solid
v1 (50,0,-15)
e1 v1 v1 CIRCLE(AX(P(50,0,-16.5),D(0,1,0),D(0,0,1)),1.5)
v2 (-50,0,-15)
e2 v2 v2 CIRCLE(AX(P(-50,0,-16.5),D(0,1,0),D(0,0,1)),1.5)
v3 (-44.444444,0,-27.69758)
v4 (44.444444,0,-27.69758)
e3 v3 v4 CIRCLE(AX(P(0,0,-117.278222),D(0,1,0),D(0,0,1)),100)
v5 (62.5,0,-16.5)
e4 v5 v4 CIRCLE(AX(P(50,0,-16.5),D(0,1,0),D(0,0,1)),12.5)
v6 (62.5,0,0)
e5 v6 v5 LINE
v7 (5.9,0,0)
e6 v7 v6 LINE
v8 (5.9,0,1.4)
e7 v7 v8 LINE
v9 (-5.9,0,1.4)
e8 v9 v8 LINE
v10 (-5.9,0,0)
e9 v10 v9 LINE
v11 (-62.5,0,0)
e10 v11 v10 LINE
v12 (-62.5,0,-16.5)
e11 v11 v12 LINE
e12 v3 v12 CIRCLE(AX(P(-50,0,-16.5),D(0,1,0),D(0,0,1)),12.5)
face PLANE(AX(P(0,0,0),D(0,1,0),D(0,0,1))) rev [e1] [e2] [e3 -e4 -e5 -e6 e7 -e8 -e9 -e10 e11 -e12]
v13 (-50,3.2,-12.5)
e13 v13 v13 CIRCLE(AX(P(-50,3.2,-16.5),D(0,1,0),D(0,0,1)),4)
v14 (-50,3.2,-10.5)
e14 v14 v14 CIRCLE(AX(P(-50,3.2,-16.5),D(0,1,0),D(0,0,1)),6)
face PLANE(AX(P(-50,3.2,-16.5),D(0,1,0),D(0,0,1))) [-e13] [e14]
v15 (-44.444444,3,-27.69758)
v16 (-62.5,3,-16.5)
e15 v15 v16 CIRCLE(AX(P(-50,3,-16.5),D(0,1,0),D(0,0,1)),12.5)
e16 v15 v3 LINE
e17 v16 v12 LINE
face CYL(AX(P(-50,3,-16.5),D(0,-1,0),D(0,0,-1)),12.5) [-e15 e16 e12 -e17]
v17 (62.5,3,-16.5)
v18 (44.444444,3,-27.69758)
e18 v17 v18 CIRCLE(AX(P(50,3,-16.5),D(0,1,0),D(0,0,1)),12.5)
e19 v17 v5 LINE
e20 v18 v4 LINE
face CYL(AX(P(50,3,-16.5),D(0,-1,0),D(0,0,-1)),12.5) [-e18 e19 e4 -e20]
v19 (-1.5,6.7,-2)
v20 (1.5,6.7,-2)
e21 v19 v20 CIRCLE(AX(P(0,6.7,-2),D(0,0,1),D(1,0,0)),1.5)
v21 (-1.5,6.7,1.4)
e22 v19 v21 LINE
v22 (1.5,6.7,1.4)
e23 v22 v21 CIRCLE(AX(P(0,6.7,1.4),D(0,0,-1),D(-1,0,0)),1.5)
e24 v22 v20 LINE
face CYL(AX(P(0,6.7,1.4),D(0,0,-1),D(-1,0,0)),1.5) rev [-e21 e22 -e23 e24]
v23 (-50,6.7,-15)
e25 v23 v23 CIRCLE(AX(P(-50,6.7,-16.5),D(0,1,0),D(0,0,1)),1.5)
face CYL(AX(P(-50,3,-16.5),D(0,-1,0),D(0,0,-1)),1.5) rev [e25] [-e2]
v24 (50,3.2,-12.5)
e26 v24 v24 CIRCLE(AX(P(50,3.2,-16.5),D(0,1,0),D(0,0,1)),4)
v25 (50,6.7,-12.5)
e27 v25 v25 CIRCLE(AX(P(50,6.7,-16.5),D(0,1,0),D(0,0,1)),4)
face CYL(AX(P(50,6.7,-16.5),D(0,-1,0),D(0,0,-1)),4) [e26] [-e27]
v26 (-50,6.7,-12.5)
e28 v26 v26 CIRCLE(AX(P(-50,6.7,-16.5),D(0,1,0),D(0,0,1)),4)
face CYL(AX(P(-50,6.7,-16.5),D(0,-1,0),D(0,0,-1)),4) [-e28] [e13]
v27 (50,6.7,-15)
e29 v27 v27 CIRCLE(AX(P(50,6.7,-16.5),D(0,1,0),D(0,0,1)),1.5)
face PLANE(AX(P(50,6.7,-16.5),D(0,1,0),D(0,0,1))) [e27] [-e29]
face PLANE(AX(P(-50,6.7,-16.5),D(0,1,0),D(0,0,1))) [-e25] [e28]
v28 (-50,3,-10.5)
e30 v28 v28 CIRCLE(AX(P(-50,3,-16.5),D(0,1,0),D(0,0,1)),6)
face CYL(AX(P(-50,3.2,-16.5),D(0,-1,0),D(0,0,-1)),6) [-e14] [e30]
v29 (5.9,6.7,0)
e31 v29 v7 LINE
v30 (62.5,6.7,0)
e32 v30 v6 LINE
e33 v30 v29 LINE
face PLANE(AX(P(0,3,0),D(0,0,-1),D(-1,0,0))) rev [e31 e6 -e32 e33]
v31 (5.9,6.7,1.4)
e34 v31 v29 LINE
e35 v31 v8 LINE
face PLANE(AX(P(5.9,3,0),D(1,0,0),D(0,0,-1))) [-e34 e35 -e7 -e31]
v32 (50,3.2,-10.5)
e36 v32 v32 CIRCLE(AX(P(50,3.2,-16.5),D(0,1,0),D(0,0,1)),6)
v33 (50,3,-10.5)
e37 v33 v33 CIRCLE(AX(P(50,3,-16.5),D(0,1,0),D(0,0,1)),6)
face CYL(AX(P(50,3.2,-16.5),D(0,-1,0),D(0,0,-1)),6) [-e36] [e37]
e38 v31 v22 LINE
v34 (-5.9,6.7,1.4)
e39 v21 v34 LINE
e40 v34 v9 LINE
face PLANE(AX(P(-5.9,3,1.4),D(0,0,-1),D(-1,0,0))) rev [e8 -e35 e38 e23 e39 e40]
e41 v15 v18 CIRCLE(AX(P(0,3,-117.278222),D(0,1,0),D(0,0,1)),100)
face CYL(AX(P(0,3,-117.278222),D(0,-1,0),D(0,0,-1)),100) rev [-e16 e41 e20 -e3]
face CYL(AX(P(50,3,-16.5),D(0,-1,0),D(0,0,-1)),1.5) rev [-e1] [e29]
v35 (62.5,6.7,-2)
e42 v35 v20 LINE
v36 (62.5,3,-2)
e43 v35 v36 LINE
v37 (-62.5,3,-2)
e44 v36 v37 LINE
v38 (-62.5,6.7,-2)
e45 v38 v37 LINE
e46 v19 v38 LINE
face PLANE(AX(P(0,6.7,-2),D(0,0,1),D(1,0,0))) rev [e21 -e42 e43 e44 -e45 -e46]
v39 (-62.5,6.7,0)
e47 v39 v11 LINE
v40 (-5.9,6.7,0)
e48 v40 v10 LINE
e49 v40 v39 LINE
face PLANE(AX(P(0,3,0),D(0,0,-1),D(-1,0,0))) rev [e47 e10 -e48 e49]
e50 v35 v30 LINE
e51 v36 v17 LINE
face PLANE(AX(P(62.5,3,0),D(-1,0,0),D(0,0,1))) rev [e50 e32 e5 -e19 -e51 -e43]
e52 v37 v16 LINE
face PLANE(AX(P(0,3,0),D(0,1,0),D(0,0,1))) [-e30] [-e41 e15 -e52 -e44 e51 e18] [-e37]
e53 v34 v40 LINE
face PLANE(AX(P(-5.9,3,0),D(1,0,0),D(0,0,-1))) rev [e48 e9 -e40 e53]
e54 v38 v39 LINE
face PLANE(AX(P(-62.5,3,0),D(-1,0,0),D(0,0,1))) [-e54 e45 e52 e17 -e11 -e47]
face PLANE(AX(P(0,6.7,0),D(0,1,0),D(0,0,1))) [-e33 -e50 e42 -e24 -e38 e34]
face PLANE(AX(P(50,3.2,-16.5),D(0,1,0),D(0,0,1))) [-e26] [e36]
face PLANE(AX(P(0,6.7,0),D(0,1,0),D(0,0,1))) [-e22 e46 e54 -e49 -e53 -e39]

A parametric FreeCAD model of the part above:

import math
import FreeCAD as App
import Part
import Sketcher
from FreeCAD import Vector

doc = App.newDocument("Part")
body = doc.addObject("PartDesign::Body", "Body")

sketch1 = doc.addObject("Sketcher::SketchObject", "Sketch")
body.addObject(sketch1)
sketch1.AttachmentSupport = (doc.XZ_Plane, [""])
sketch1.MapMode = "FlatFace"
sketch1.addGeometry([
    Part.LineSegment(Vector(-62.5, 0, 0), Vector(-5.9, 0, 0)),
    Part.LineSegment(Vector(-5.9, 0, 0), Vector(-5.9, 1.4, 0)),
    Part.LineSegment(Vector(-5.9, 1.4, 0), Vector(5.9, 1.4, 0)),
    Part.LineSegment(Vector(5.9, 1.4, 0), Vector(5.9, 0, 0)),
    Part.LineSegment(Vector(5.9, 0, 0), Vector(62.5, 0, 0)),
    Part.LineSegment(Vector(62.5, 0, 0), Vector(62.5, -16.5, 0)),
    Part.ArcOfCircle(Part.Circle(Vector(50, -16.5, 0), Vector(0, 0, 1), 12.5), math.radians(-116.387803), math.radians(0)),
    Part.ArcOfCircle(Part.Circle(Vector(0, -117.278222, 0), Vector(0, 0, 1), 100), math.radians(63.6122), math.radians(116.3878)),
    Part.ArcOfCircle(Part.Circle(Vector(-50, -16.5, 0), Vector(0, 0, 1), 12.5), math.radians(180), math.radians(296.387802)),
    Part.LineSegment(Vector(-62.5, -16.5, 0), Vector(-62.5, 0, 0)),
    Part.Circle(Vector(-50, -16.5, 0), Vector(0, 0, 1), 1.5),
    Part.Circle(Vector(50, -16.5, 0), Vector(0, 0, 1), 1.5),
], False)
sketch1.addConstraint([
    Sketcher.Constraint("Coincident", 0, 2, 1, 1),
    Sketcher.Constraint("Coincident", 1, 2, 2, 1),
    Sketcher.Constraint("Coincident", 2, 2, 3, 1),
    Sketcher.Constraint("Coincident", 3, 2, 4, 1),
    Sketcher.Constraint("Coincident", 4, 2, 5, 1),
    Sketcher.Constraint("Tangent", 5, 2, 6, 2),
    Sketcher.Constraint("Tangent", 6, 1, 7, 1),
    Sketcher.Constraint("Tangent", 7, 2, 8, 2),
    Sketcher.Constraint("Tangent", 8, 1, 9, 1),
    Sketcher.Constraint("Coincident", 9, 2, 0, 1),
    Sketcher.Constraint("Horizontal", 0),
    Sketcher.Constraint("Vertical", 1),
    Sketcher.Constraint("Horizontal", 2),
    Sketcher.Constraint("Vertical", 3),
    Sketcher.Constraint("Horizontal", 4),
    Sketcher.Constraint("Vertical", 5),
    Sketcher.Constraint("Vertical", 9),
    Sketcher.Constraint("Coincident", 10, 3, 8, 3),
    Sketcher.Constraint("Coincident", 11, 3, 6, 3),
    Sketcher.Constraint("Equal", 6, 8),
    Sketcher.Constraint("Equal", 10, 11),
    Sketcher.Constraint("Symmetric", 0, 2, 3, 2, -1, 1),
    Sketcher.Constraint("Symmetric", 6, 3, 8, 3, -2),
    Sketcher.Constraint("PointOnObject", 0, 2, -1),
    Sketcher.Constraint("Diameter", 10, 3.0),
    Sketcher.Constraint("Radius", 7, 100.0),
    Sketcher.Constraint("Radius", 6, 12.5),
    Sketcher.Constraint("DistanceX", 0, 1, 0, 2, 56.6),
    Sketcher.Constraint("DistanceX", 2, 1, 2, 2, 11.8),
    Sketcher.Constraint("DistanceY", 1, 1, 1, 2, 1.4),
    Sketcher.Constraint("DistanceY", 5, 2, 5, 1, 16.5),
])
pad1 = doc.addObject("PartDesign::Pad", "Pad")
body.addObject(pad1)
pad1.Profile = sketch1
pad1.Length = 3
pad1.Reversed = True

sketch2 = doc.addObject("Sketcher::SketchObject", "Sketch001")
body.addObject(sketch2)
sketch2.AttachmentSupport = (doc.XZ_Plane, [""])
sketch2.MapMode = "FlatFace"
sketch2.AttachmentOffset = App.Placement(Vector(0, 0, -3), App.Rotation())
sketch2.addGeometry([
    Part.Circle(Vector(-50, -16.5, 0), Vector(0, 0, 1), 4),
    Part.Circle(Vector(-50, -16.5, 0), Vector(0, 0, 1), 1.5),
    Part.Circle(Vector(50, -16.5, 0), Vector(0, 0, 1), 4),
    Part.Circle(Vector(50, -16.5, 0), Vector(0, 0, 1), 1.5),
    Part.LineSegment(Vector(-5.9, 0, 0), Vector(-5.9, 1.4, 0)),
    Part.LineSegment(Vector(-5.9, 1.4, 0), Vector(5.9, 1.4, 0)),
    Part.LineSegment(Vector(5.9, 1.4, 0), Vector(5.9, 0, 0)),
    Part.LineSegment(Vector(5.9, 0, 0), Vector(62.5, 0, 0)),
    Part.LineSegment(Vector(62.5, 0, 0), Vector(62.5, -2, 0)),
    Part.LineSegment(Vector(62.5, -2, 0), Vector(-62.5, -2, 0)),
    Part.LineSegment(Vector(-62.5, -2, 0), Vector(-62.5, 0, 0)),
    Part.LineSegment(Vector(-62.5, 0, 0), Vector(-5.9, 0, 0)),
], False)
sketch2.addConstraint([
    Sketcher.Constraint("Coincident", 4, 2, 5, 1),
    Sketcher.Constraint("Coincident", 5, 2, 6, 1),
    Sketcher.Constraint("Coincident", 6, 2, 7, 1),
    Sketcher.Constraint("Coincident", 7, 2, 8, 1),
    Sketcher.Constraint("Coincident", 8, 2, 9, 1),
    Sketcher.Constraint("Coincident", 9, 2, 10, 1),
    Sketcher.Constraint("Coincident", 10, 2, 11, 1),
    Sketcher.Constraint("Coincident", 11, 2, 4, 1),
    Sketcher.Constraint("Vertical", 4),
    Sketcher.Constraint("Horizontal", 5),
    Sketcher.Constraint("Vertical", 6),
    Sketcher.Constraint("Horizontal", 7),
    Sketcher.Constraint("Vertical", 8),
    Sketcher.Constraint("Horizontal", 9),
    Sketcher.Constraint("Vertical", 10),
    Sketcher.Constraint("Horizontal", 11),
    Sketcher.Constraint("Coincident", 1, 3, 0, 3),
    Sketcher.Constraint("Coincident", 3, 3, 2, 3),
    Sketcher.Constraint("Equal", 0, 2),
    Sketcher.Constraint("Equal", 1, 3),
    Sketcher.Constraint("Symmetric", 7, 2, 10, 2, -1, 1),
    Sketcher.Constraint("Symmetric", 0, 3, 2, 3, -2),
    Sketcher.Constraint("Symmetric", 6, 2, 11, 2, -2),
    Sketcher.Constraint("Diameter", 0, 8.0),
    Sketcher.Constraint("Diameter", 1, 3.0),
    Sketcher.Constraint("DistanceX", 9, 2, 9, 1, 125.0),
    Sketcher.Constraint("DistanceY", 8, 2, 8, 1, 2.0),
    Sketcher.Constraint("DistanceX", 5, 1, 5, 2, 11.8),
    Sketcher.Constraint("DistanceY", 4, 1, 4, 2, 1.4),
    Sketcher.Constraint("DistanceX", 0, 3, -1, 1, 50.0),
    Sketcher.Constraint("DistanceY", 0, 3, -1, 1, 16.5),
])
pad2 = doc.addObject("PartDesign::Pad", "Pad001")
body.addObject(pad2)
pad2.Profile = sketch2
pad2.Length = 3.7
pad2.Reversed = True

sketch3 = doc.addObject("Sketcher::SketchObject", "Sketch002")
body.addObject(sketch3)
sketch3.AttachmentSupport = (doc.XY_Plane, [""])
sketch3.MapMode = "FlatFace"
sketch3.AttachmentOffset = App.Placement(Vector(0, 0, -2), App.Rotation())
sketch3.addGeometry(Part.Circle(Vector(0, 6.7, 0), Vector(0, 0, 1), 1.5), False)
sketch3.addConstraint([
    Sketcher.Constraint("PointOnObject", 0, 3, -2),
    Sketcher.Constraint("Diameter", 0, 3.0),
    Sketcher.Constraint("DistanceY", -1, 1, 0, 3, 6.7),
])
pocket1 = doc.addObject("PartDesign::Pocket", "Pocket")
body.addObject(pocket1)
pocket1.Profile = sketch3
pocket1.Type = "ThroughAll"
pocket1.Reversed = True

sketch4 = doc.addObject("Sketcher::SketchObject", "Sketch003")
body.addObject(sketch4)
sketch4.AttachmentSupport = (doc.XZ_Plane, [""])
sketch4.MapMode = "FlatFace"
sketch4.AttachmentOffset = App.Placement(Vector(0, 0, -3), App.Rotation())
sketch4.addGeometry([
    Part.Circle(Vector(-50, -16.5, 0), Vector(0, 0, 1), 6),
    Part.Circle(Vector(-50, -16.5, 0), Vector(0, 0, 1), 1.5),
    Part.Circle(Vector(50, -16.5, 0), Vector(0, 0, 1), 6),
    Part.Circle(Vector(50, -16.5, 0), Vector(0, 0, 1), 1.5),
], False)
sketch4.addConstraint([
    Sketcher.Constraint("Coincident", 1, 3, 0, 3),
    Sketcher.Constraint("Coincident", 3, 3, 2, 3),
    Sketcher.Constraint("Equal", 0, 2),
    Sketcher.Constraint("Equal", 1, 3),
    Sketcher.Constraint("Symmetric", 0, 3, 2, 3, -2),
    Sketcher.Constraint("Diameter", 0, 12.0),
    Sketcher.Constraint("Diameter", 1, 3.0),
    Sketcher.Constraint("DistanceX", 0, 3, -1, 1, 50.0),
    Sketcher.Constraint("DistanceY", 0, 3, -1, 1, 16.5),
])
pad3 = doc.addObject("PartDesign::Pad", "Pad002")
body.addObject(pad3)
pad3.Profile = sketch4
pad3.Length = 0.2
pad3.Reversed = True

doc.recompute()
